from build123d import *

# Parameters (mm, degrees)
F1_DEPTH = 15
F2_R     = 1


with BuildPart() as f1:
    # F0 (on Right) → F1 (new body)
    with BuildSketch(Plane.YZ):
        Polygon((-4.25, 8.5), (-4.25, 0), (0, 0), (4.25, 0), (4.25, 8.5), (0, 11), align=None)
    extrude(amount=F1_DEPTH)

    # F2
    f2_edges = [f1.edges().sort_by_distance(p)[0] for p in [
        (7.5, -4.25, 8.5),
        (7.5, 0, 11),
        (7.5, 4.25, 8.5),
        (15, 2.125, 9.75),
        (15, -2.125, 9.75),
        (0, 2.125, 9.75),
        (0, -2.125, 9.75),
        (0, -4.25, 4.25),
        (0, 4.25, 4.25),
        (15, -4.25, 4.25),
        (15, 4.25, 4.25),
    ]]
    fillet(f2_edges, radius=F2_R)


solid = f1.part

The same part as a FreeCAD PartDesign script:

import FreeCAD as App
import Part
import Sketcher
from FreeCAD import Vector
Q = App.Units.Quantity


def edges_at(feature, points):
    """Names of the edges that pass closest to the given points."""
    edges = feature.Shape.Edges
    near = lambda p: min(range(len(edges)), key=lambda i: edges[i].distToShape(Part.Vertex(*p))[0])
    return sorted({f"Edge{near(p) + 1}" for p in points})

doc = App.newDocument("Part")
body = doc.addObject("PartDesign::Body", "Body")

sketch1 = body.newObject("Sketcher::SketchObject", "Sketch")
sketch1.AttachmentSupport = (doc.getObject("YZ_Plane"), [""])
sketch1.MapMode = "FlatFace"
sketch1.addGeometry(Part.LineSegment(Vector(-4.2, 8.5, 0), Vector(-4.2, 0, 0)), False)
sketch1.addGeometry(Part.LineSegment(Vector(-4.2, 0, 0), Vector(4.2, 0, 0)), False)
sketch1.addGeometry(Part.LineSegment(Vector(4.2, 0, 0), Vector(4.2, 8.5, 0)), False)
sketch1.addGeometry(Part.LineSegment(Vector(4.2, 8.5, 0), Vector(0, 11, 0)), False)
sketch1.addGeometry(Part.LineSegment(Vector(0, 11, 0), Vector(-4.2, 8.5, 0)), False)
sketch1.addConstraint(Sketcher.Constraint("Coincident", 0, 2, 1, 1))
sketch1.addConstraint(Sketcher.Constraint("Coincident", 1, 2, 2, 1))
sketch1.addConstraint(Sketcher.Constraint("Coincident", 2, 2, 3, 1))
sketch1.addConstraint(Sketcher.Constraint("Coincident", 3, 2, 4, 1))
sketch1.addConstraint(Sketcher.Constraint("Coincident", 4, 2, 0, 1))
sketch1.addConstraint(Sketcher.Constraint("Vertical", 0))
sketch1.addConstraint(Sketcher.Constraint("Horizontal", 1))
sketch1.addConstraint(Sketcher.Constraint("Vertical", 2))
sketch1.addConstraint(Sketcher.Constraint("Symmetric", 0, 2, 1, 2, -1, 1))
sketch1.addConstraint(Sketcher.Constraint("PointOnObject", 3, 2, -2))
sketch1.addConstraint(Sketcher.Constraint("Horizontal", 2, 2, 4, 2))
sketch1.addConstraint(Sketcher.Constraint("Equal", 1, 0))
sketch1.addConstraint(Sketcher.Constraint("DistanceX", 1, 1, 1, 2, Q("8.5 mm")))
sketch1.addConstraint(Sketcher.Constraint("DistanceY", -1, 1, 3, 2, Q("11 mm")))
pad1 = body.newObject("PartDesign::Pad", "Pad")
pad1.Profile = sketch1
pad1.Length = 15
doc.recompute()

fillet = body.newObject("PartDesign::Fillet", "Fillet")
fillet.Base = (pad1, edges_at(pad1, [
    (7.5, -4.25, 8.5),
    (7.5, 0, 11),
    (7.5, 4.25, 8.5),
    (15, 2.125, 9.75),
    (15, -2.125, 9.75),
    (0, 2.125, 9.75),
    (0, -2.125, 9.75),
    (0, -4.25, 4.25),
    (0, 4.25, 4.25),
    (15, -4.25, 4.25),
    (15, 4.25, 4.25),
]))
fillet.Radius = 1

doc.recompute()
